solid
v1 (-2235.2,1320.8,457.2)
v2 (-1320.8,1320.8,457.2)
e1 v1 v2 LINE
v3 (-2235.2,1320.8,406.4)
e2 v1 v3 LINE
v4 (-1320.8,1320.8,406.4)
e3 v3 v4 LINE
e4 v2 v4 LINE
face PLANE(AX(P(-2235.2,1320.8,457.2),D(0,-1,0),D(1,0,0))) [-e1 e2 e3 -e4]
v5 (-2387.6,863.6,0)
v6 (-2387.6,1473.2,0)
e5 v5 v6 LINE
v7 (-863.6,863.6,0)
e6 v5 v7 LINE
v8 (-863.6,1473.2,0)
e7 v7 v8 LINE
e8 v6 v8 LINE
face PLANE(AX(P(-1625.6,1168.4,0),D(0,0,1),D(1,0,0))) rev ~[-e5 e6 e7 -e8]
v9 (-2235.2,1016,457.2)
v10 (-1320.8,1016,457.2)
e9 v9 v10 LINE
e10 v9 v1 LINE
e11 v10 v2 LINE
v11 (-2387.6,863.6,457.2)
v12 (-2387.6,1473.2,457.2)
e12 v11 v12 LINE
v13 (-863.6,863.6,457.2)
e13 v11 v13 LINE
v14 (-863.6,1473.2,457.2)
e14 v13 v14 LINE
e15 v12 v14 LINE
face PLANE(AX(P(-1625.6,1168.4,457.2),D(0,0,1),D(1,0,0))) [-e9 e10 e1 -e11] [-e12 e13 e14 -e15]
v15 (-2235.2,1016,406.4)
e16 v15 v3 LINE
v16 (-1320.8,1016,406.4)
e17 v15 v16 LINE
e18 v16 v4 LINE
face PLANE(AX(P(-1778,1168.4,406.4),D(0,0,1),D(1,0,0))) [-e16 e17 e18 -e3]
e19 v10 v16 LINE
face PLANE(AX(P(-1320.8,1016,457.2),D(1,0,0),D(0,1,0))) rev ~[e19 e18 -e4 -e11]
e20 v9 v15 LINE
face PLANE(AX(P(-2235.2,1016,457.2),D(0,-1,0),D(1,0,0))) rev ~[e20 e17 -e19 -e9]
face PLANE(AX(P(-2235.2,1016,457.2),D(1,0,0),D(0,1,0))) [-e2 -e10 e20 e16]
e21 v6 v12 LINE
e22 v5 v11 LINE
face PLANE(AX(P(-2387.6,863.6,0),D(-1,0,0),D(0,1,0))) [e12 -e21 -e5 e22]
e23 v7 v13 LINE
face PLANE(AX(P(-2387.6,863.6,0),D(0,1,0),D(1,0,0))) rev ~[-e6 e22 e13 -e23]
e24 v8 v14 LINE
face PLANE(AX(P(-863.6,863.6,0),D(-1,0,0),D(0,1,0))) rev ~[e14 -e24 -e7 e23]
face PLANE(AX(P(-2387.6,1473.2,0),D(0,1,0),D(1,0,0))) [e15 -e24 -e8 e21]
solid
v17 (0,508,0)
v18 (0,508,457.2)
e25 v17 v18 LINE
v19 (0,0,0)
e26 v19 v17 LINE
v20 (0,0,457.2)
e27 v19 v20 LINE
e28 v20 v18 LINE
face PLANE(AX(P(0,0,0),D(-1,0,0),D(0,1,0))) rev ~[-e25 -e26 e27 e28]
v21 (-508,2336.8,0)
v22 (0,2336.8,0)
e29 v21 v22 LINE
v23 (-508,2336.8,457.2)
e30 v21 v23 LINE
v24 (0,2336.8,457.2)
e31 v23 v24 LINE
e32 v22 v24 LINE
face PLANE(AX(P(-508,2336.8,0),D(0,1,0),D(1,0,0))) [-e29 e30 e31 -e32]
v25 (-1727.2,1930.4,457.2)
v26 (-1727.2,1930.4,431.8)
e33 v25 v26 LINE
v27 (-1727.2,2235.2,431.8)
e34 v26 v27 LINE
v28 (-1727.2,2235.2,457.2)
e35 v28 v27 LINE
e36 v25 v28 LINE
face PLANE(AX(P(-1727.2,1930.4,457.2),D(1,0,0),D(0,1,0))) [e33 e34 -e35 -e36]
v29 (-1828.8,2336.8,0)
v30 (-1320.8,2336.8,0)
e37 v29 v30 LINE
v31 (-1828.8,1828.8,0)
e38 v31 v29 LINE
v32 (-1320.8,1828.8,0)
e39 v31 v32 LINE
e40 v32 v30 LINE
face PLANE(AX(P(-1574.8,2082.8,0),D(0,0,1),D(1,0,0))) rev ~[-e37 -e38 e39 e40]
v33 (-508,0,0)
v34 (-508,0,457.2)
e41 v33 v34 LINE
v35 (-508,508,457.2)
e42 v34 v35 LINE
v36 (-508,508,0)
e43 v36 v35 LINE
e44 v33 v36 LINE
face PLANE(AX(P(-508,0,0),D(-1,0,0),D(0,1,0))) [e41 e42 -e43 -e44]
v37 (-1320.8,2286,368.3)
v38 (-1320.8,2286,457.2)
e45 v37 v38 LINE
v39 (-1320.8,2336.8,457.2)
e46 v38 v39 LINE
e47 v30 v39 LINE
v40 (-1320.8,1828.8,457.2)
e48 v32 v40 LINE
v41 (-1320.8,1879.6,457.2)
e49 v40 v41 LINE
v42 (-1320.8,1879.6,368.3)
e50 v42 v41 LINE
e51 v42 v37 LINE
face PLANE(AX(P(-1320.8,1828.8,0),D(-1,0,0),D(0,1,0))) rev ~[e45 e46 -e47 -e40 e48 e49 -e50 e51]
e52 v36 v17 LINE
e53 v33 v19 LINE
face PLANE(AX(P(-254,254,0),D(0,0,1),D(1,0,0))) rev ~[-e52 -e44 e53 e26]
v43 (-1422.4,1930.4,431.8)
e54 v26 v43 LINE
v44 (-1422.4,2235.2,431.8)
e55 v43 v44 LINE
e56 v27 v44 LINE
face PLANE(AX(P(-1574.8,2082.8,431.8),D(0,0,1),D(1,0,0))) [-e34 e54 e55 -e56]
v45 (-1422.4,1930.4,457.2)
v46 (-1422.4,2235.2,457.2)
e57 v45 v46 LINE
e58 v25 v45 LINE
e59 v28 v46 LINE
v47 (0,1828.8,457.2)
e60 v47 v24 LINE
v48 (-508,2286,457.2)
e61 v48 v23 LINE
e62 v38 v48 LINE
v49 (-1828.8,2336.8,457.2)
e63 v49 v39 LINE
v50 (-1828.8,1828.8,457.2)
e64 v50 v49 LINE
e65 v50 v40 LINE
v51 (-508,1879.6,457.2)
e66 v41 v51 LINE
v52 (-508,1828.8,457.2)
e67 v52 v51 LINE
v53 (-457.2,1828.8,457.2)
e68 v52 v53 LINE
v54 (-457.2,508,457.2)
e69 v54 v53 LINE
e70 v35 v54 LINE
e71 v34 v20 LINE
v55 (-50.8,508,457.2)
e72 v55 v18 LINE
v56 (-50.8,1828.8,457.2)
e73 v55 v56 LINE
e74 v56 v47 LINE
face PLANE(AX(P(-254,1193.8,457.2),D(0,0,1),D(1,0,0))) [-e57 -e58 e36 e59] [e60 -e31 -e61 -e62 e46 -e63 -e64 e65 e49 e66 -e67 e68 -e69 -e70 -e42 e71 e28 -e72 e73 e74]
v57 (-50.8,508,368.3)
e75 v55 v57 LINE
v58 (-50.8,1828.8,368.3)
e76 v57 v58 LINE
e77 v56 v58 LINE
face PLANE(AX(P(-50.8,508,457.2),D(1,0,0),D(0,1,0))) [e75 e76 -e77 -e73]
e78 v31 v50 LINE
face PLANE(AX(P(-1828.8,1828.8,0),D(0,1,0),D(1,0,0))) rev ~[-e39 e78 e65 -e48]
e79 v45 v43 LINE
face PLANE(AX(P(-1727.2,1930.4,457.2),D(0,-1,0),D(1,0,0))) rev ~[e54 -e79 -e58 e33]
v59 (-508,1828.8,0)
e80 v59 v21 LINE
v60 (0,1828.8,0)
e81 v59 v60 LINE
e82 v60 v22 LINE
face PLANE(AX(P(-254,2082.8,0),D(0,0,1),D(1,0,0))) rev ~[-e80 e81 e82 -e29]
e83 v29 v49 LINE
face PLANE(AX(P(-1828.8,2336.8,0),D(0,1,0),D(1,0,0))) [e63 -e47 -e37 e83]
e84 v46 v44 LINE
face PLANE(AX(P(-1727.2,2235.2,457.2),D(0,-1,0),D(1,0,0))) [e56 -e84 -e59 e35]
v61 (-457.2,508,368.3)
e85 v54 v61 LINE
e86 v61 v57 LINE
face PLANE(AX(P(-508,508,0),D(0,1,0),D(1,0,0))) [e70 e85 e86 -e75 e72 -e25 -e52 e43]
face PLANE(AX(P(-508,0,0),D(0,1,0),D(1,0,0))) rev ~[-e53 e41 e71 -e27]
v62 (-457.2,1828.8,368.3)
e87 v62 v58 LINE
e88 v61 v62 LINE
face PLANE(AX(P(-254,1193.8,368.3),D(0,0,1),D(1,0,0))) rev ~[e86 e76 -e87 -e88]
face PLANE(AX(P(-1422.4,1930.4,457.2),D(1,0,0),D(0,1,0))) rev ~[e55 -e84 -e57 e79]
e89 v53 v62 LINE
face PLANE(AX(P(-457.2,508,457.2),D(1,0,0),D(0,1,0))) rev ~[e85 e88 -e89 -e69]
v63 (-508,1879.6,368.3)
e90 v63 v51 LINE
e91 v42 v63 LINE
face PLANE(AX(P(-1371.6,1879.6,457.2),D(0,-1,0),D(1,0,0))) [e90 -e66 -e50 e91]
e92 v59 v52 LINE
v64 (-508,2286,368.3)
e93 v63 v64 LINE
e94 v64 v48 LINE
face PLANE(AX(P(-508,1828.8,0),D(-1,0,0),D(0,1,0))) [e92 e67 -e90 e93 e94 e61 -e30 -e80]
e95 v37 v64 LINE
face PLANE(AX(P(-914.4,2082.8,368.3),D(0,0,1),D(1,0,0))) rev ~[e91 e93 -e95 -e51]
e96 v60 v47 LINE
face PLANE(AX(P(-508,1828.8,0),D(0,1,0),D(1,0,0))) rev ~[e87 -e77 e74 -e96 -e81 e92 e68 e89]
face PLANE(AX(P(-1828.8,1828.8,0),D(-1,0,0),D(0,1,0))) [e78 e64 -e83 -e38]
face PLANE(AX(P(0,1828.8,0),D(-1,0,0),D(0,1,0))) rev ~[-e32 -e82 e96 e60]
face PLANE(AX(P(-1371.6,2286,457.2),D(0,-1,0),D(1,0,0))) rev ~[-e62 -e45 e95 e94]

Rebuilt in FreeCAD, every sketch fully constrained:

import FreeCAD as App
import Part
import Sketcher

V = App.Vector
Q = App.Units.Quantity


def add_polygon(sketch, points):
    """Adds a closed chain of lines whose ends are joined by coincident constraints."""
    first, n = sketch.GeometryCount, len(points)
    for a, b in zip(points, points[1:] + points[:1]):
        sketch.addGeometry(Part.LineSegment(App.Vector(*a, 0), App.Vector(*b, 0)), False)
    for i in range(n):
        sketch.addConstraint(Sketcher.Constraint("Coincident", first + i, 2, first + (i + 1) % n, 1))

doc = App.newDocument("Part")
body = doc.addObject("PartDesign::Body", "Body")
body.AllowCompound = True

sketch1 = body.newObject("Sketcher::SketchObject", "Sketch")
sketch1.AttachmentSupport = (doc.getObject("XY_Plane"), [""])
sketch1.MapMode = "FlatFace"
add_polygon(sketch1, [(-508, 508), (-508, 0), (0, 0), (0, 508)])
add_polygon(sketch1, [(-508, 2337), (-508, 1829), (0, 1829), (0, 2337)])
add_polygon(sketch1, [(-1829, 2337), (-1829, 1829), (-1321, 1829), (-1321, 2337)])
add_polygon(sketch1, [(-2388, 1473), (-2388, 864), (-864, 864), (-864, 1473)])
sketch1.addConstraint(Sketcher.Constraint("Vertical", 0))
sketch1.addConstraint(Sketcher.Constraint("Horizontal", 1))
sketch1.addConstraint(Sketcher.Constraint("Vertical", 2))
sketch1.addConstraint(Sketcher.Constraint("Horizontal", 3))
sketch1.addConstraint(Sketcher.Constraint("Vertical", 4))
sketch1.addConstraint(Sketcher.Constraint("Horizontal", 5))
sketch1.addConstraint(Sketcher.Constraint("Vertical", 6))
sketch1.addConstraint(Sketcher.Constraint("Horizontal", 7))
sketch1.addConstraint(Sketcher.Constraint("Vertical", 8))
sketch1.addConstraint(Sketcher.Constraint("Horizontal", 9))
sketch1.addConstraint(Sketcher.Constraint("Vertical", 10))
sketch1.addConstraint(Sketcher.Constraint("Horizontal", 11))
sketch1.addConstraint(Sketcher.Constraint("Vertical", 12))
sketch1.addConstraint(Sketcher.Constraint("Horizontal", 13))
sketch1.addConstraint(Sketcher.Constraint("Vertical", 14))
sketch1.addConstraint(Sketcher.Constraint("Horizontal", 15))
sketch1.addConstraint(Sketcher.Constraint("Coincident", 1, 2, -1, 1))
sketch1.addConstraint(Sketcher.Constraint("PointOnObject", 5, 2, -2))
sketch1.addConstraint(Sketcher.Constraint("Horizontal", 5, 2, 8, 2))
sketch1.addConstraint(Sketcher.Constraint("Horizontal", 7, 2, 10, 2))
sketch1.addConstraint(Sketcher.Constraint("Vertical", 3, 2, 4, 2))
sketch1.addConstraint(Sketcher.Constraint("Equal", 7, 9))
sketch1.addConstraint(Sketcher.Constraint("Equal", 11, 0))
sketch1.addConstraint(Sketcher.Constraint("Equal", 2, 4))
sketch1.addConstraint(Sketcher.Constraint("DistanceX", 1, 1, 1, 2, Q("20 in")))
sketch1.addConstraint(Sketcher.Constraint("DistanceX", 13, 1, 13, 2, Q("60 in")))
sketch1.addConstraint(Sketcher.Constraint("DistanceY", 12, 2, 12, 1, Q("24 in")))
sketch1.addConstraint(Sketcher.Constraint("DistanceY", -1, 1, 4, 2, Q("72 in")))
sketch1.addConstraint(Sketcher.Constraint("DistanceX", 8, 2, -1, 1, Q("72 in")))
sketch1.addConstraint(Sketcher.Constraint("DistanceX", 12, 2, -1, 1, Q("94 in")))
sketch1.addConstraint(Sketcher.Constraint("DistanceY", -1, 1, 12, 2, Q("34 in")))
pad1 = body.newObject("PartDesign::Pad", "Pad")
pad1.Profile = sketch1
pad1.Length = Q("18 in")

sketch2 = body.newObject("Sketcher::SketchObject", "Sketch001")
sketch2.AttachmentSupport = (doc.getObject("XY_Plane"), [""])
sketch2.MapMode = "FlatFace"
sketch2.AttachmentOffset = App.Placement(V(0, 0, 18 * 25.4), App.Rotation())
add_polygon(sketch2, [(-457, 1880), (-457, 508), (-51, 508), (-51, 1880)])
add_polygon(sketch2, [(-1372, 2286), (-1372, 1880), (-457, 1880), (-457, 2286)])
sketch2.addConstraint(Sketcher.Constraint("Vertical", 0))
sketch2.addConstraint(Sketcher.Constraint("Horizontal", 1))
sketch2.addConstraint(Sketcher.Constraint("Vertical", 2))
sketch2.addConstraint(Sketcher.Constraint("Horizontal", 3))
sketch2.addConstraint(Sketcher.Constraint("Vertical", 4))
sketch2.addConstraint(Sketcher.Constraint("Horizontal", 5))
sketch2.addConstraint(Sketcher.Constraint("Vertical", 6))
sketch2.addConstraint(Sketcher.Constraint("Horizontal", 7))
sketch2.addConstraint(Sketcher.Constraint("Coincident", 5, 2, 3, 2))
sketch2.addConstraint(Sketcher.Constraint("Equal", 3, 4))
sketch2.addConstraint(Sketcher.Constraint("DistanceX", 1, 1, 1, 2, Q("16 in")))
sketch2.addConstraint(Sketcher.Constraint("DistanceX", 5, 1, 5, 2, Q("36 in")))
sketch2.addConstraint(Sketcher.Constraint("DistanceY", 0, 2, 0, 1, Q("54 in")))
sketch2.addConstraint(Sketcher.Constraint("DistanceX", 0, 2, -1, 1, Q("18 in")))
sketch2.addConstraint(Sketcher.Constraint("DistanceY", -1, 1, 0, 2, Q("20 in")))
pad2 = body.newObject("PartDesign::Pad", "Pad001")
pad2.Profile = sketch2
pad2.Length = Q("3.5 in")
pad2.Reversed = True

sketch3 = body.newObject("Sketcher::SketchObject", "Sketch002")
sketch3.AttachmentSupport = (doc.getObject("XY_Plane"), [""])
sketch3.MapMode = "FlatFace"
sketch3.AttachmentOffset = App.Placement(V(0, 0, 18 * 25.4), App.Rotation())
add_polygon(sketch3, [(-1727, 2235), (-1727, 1930), (-1422, 1930), (-1422, 2235)])
sketch3.addConstraint(Sketcher.Constraint("Vertical", 0))
sketch3.addConstraint(Sketcher.Constraint("Horizontal", 1))
sketch3.addConstraint(Sketcher.Constraint("Vertical", 2))
sketch3.addConstraint(Sketcher.Constraint("Horizontal", 3))
sketch3.addConstraint(Sketcher.Constraint("Equal", 3, 0))
sketch3.addConstraint(Sketcher.Constraint("DistanceX", 1, 1, 1, 2, Q("12 in")))
sketch3.addConstraint(Sketcher.Constraint("DistanceX", 0, 2, -1, 1, Q("68 in")))
sketch3.addConstraint(Sketcher.Constraint("DistanceY", -1, 1, 0, 2, Q("76 in")))
pocket1 = body.newObject("PartDesign::Pocket", "Pocket")
pocket1.Profile = sketch3
pocket1.Length = Q("1 in")

sketch4 = body.newObject("Sketcher::SketchObject", "Sketch003")
sketch4.AttachmentSupport = (doc.getObject("XY_Plane"), [""])
sketch4.MapMode = "FlatFace"
sketch4.AttachmentOffset = App.Placement(V(0, 0, 18 * 25.4), App.Rotation())
add_polygon(sketch4, [(-2235, 1321), (-2235, 1016), (-1321, 1016), (-1321, 1321)])
sketch4.addConstraint(Sketcher.Constraint("Vertical", 0))
sketch4.addConstraint(Sketcher.Constraint("Horizontal", 1))
sketch4.addConstraint(Sketcher.Constraint("Vertical", 2))
sketch4.addConstraint(Sketcher.Constraint("Horizontal", 3))
sketch4.addConstraint(Sketcher.Constraint("DistanceX", 1, 1, 1, 2, Q("36 in")))
sketch4.addConstraint(Sketcher.Constraint("DistanceY", 0, 2, 0, 1, Q("12 in")))
sketch4.addConstraint(Sketcher.Constraint("DistanceX", 0, 2, -1, 1, Q("88 in")))
sketch4.addConstraint(Sketcher.Constraint("DistanceY", -1, 1, 0, 2, Q("40 in")))
pocket2 = body.newObject("PartDesign::Pocket", "Pocket001")
pocket2.Profile = sketch4
pocket2.Length = Q("2 in")

doc.recompute()
